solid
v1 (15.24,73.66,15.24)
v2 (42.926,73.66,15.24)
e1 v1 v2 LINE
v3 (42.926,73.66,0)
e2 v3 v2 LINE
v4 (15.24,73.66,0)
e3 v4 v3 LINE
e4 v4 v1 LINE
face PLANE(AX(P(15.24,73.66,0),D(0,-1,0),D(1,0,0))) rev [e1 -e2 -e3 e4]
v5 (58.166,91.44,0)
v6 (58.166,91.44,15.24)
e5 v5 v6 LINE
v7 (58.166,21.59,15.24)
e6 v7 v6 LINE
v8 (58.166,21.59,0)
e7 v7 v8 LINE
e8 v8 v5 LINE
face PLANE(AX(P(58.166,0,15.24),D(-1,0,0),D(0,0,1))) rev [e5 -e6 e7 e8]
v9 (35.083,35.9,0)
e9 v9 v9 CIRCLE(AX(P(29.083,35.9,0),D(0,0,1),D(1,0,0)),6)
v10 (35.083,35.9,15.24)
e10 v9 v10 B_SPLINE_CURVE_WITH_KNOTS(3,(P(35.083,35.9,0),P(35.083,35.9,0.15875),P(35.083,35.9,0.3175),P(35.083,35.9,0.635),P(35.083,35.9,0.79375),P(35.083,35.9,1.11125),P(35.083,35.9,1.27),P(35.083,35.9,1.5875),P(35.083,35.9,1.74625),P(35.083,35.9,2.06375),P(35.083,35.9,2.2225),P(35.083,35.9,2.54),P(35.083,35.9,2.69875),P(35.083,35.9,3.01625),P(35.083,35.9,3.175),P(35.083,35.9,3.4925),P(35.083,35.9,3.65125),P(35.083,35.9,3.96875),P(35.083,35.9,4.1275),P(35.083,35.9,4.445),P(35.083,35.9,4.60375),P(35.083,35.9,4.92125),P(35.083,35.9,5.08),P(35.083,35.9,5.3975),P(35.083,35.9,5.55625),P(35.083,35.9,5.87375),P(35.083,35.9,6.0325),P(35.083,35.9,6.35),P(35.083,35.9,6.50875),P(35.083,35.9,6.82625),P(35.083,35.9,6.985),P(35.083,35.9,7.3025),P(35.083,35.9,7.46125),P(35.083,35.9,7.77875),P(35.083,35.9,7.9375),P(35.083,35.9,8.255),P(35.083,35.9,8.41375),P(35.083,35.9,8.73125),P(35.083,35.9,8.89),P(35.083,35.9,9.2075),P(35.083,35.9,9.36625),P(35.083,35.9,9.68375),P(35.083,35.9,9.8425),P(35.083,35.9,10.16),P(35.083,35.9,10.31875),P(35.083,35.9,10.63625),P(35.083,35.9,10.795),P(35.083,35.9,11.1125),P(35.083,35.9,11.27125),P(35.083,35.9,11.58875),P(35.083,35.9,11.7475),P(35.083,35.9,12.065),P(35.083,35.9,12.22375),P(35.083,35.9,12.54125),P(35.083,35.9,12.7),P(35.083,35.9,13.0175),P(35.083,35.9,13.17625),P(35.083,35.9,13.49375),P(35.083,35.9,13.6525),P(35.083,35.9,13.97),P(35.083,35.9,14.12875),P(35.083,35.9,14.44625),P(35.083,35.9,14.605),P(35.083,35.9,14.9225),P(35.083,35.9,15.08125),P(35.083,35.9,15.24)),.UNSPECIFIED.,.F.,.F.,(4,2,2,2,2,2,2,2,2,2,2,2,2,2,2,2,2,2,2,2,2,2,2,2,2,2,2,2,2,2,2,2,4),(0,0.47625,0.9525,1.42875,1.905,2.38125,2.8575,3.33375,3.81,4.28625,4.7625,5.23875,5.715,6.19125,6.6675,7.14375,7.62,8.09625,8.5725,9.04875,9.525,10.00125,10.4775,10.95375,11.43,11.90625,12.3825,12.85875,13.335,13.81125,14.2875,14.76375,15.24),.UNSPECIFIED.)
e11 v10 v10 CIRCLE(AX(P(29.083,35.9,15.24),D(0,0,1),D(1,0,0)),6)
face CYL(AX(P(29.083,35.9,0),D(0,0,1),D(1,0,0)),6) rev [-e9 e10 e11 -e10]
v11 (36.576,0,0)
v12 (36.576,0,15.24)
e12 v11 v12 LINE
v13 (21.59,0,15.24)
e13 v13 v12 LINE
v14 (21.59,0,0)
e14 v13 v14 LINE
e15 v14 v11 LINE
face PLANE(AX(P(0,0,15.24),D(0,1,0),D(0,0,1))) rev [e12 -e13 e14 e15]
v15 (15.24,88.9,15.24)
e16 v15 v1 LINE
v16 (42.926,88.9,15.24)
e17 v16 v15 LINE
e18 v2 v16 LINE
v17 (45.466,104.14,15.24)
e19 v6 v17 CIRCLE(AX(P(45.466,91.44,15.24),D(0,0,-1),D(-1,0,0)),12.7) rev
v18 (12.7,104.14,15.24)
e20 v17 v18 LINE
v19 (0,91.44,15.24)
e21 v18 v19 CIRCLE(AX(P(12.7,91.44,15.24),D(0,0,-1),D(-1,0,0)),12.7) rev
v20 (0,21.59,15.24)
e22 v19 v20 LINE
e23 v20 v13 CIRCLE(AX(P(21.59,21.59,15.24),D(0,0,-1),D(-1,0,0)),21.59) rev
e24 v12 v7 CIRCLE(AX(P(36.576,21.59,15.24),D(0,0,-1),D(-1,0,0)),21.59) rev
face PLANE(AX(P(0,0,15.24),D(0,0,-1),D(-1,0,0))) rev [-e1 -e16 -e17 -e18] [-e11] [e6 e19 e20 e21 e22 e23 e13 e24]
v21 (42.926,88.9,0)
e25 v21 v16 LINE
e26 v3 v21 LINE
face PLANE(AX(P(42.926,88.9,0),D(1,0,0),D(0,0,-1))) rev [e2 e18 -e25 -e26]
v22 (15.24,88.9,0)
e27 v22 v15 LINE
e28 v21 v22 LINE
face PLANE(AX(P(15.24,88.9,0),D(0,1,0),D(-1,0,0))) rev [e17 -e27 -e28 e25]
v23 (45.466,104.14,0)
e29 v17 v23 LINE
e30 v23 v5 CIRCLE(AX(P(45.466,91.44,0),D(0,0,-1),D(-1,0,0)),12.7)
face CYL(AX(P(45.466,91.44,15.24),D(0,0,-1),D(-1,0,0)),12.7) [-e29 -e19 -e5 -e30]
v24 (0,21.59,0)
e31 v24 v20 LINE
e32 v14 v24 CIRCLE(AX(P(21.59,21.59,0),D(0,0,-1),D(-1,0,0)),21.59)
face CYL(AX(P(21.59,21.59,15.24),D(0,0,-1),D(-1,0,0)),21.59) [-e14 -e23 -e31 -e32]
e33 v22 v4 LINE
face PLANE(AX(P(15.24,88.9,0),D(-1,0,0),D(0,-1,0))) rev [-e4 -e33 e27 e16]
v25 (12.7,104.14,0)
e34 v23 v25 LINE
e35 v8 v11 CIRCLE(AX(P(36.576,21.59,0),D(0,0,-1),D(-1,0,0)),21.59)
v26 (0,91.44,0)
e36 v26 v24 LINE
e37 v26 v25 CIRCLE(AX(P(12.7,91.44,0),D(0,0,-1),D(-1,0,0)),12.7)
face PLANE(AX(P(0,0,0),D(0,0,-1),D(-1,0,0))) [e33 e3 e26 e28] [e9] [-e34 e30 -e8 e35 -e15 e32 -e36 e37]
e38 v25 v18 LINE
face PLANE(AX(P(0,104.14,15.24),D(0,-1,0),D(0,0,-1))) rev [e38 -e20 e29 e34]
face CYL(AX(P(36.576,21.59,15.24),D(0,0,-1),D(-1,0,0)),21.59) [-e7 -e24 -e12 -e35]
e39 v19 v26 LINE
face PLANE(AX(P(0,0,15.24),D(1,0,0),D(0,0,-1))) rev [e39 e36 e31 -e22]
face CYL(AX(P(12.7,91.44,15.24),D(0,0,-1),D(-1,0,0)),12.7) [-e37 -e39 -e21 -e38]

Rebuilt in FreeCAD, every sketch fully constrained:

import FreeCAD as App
import Part
import Sketcher
Q = App.Units.Quantity


def edges_at(feature, points):
    """Names of the edges that pass closest to the given points."""
    edges = feature.Shape.Edges
    near = lambda p: min(range(len(edges)), key=lambda i: edges[i].distToShape(Part.Vertex(*p))[0])
    return sorted({f"Edge{near(p) + 1}" for p in points})

doc = App.newDocument("Part")
body = doc.addObject("PartDesign::Body", "Body")

# Sketch on XY plane
sketch1 = body.newObject("Sketcher::SketchObject", "Sketch")
sketch1.AttachmentSupport = (doc.getObject("XY_Plane"), [""])
sketch1.MapMode = "FlatFace"
sketch1.addGeometry([
    Part.LineSegment(App.Vector(0, 104, 0), App.Vector(0, 0, 0)),
    Part.LineSegment(App.Vector(0, 0, 0), App.Vector(58, 0, 0)),
    Part.LineSegment(App.Vector(58, 0, 0), App.Vector(58, 104, 0)),
    Part.LineSegment(App.Vector(58, 104, 0), App.Vector(0, 104, 0)),
], False)
sketch1.addConstraint([
    Sketcher.Constraint("Coincident", 0, 2, 1, 1),
    Sketcher.Constraint("Coincident", 1, 2, 2, 1),
    Sketcher.Constraint("Coincident", 2, 2, 3, 1),
    Sketcher.Constraint("Coincident", 3, 2, 0, 1),
    Sketcher.Constraint("Vertical", 0),
    Sketcher.Constraint("Horizontal", 1),
    Sketcher.Constraint("Vertical", 2),
    Sketcher.Constraint("Horizontal", 3),
    Sketcher.Constraint("Coincident", 0, 2, -1, 1),
    Sketcher.Constraint("DistanceY", 0, 2, 0, 1, Q("4.1 in")),
    Sketcher.Constraint("DistanceX", 1, 1, 1, 2, Q("2.29 in")),
])
pad1 = body.newObject("PartDesign::Pad", "Pad")
pad1.Profile = sketch1
pad1.Length = Q("0.6 in")

# Sketch on XY plane
sketch2 = body.newObject("Sketcher::SketchObject", "Sketch001")
sketch2.AttachmentSupport = (doc.getObject("XY_Plane"), [""])
sketch2.MapMode = "FlatFace"
sketch2.AttachmentOffset = App.Placement(App.Vector(0, 0, 0.6 * 25.4), App.Rotation())
sketch2.addGeometry([
    Part.LineSegment(App.Vector(15, 89, 0), App.Vector(15, 74, 0)),
    Part.LineSegment(App.Vector(15, 74, 0), App.Vector(43, 74, 0)),
    Part.LineSegment(App.Vector(43, 74, 0), App.Vector(43, 89, 0)),
    Part.LineSegment(App.Vector(43, 89, 0), App.Vector(15, 89, 0)),
], False)
sketch2.addConstraint([
    Sketcher.Constraint("Coincident", 0, 2, 1, 1),
    Sketcher.Constraint("Coincident", 1, 2, 2, 1),
    Sketcher.Constraint("Coincident", 2, 2, 3, 1),
    Sketcher.Constraint("Coincident", 3, 2, 0, 1),
    Sketcher.Constraint("Vertical", 0),
    Sketcher.Constraint("Horizontal", 1),
    Sketcher.Constraint("Vertical", 2),
    Sketcher.Constraint("Horizontal", 3),
    Sketcher.Constraint("DistanceY", 0, 2, 0, 1, Q("0.6 in")),
    Sketcher.Constraint("DistanceX", 1, 1, 1, 2, Q("1.09 in")),
    Sketcher.Constraint("DistanceX", -1, 1, 0, 2, Q("0.6 in")),
    Sketcher.Constraint("DistanceY", -1, 1, 0, 2, Q("2.9 in")),
])
pocket1 = body.newObject("PartDesign::Pocket", "Pocket")
pocket1.Profile = sketch2
pocket1.Type = "ThroughAll"

# Sketch on XY plane
sketch3 = body.newObject("Sketcher::SketchObject", "Sketch002")
sketch3.AttachmentSupport = (doc.getObject("XY_Plane"), [""])
sketch3.MapMode = "FlatFace"
sketch3.AttachmentOffset = App.Placement(App.Vector(0, 0, 0.6 * 25.4), App.Rotation())
sketch3.addGeometry(Part.Circle(App.Vector(29, 36, 0), App.Vector(0, 0, 1), 6), False)
sketch3.addConstraint([
    Sketcher.Constraint("Diameter", 0, Q("12 mm")),
    Sketcher.Constraint("DistanceX", -1, 1, 0, 3, Q("1.145 in")),
    Sketcher.Constraint("DistanceY", -1, 1, 0, 3, Q("35.9 mm")),
])
pocket2 = body.newObject("PartDesign::Pocket", "Pocket001")
pocket2.Profile = sketch3
pocket2.Type = "ThroughAll"
doc.recompute()

fillet = body.newObject("PartDesign::Fillet", "Fillet")
fillet.Base = (pocket2, edges_at(pocket2, [(58.166, 0, 7.62), (0, 0, 7.62)]))
fillet.Radius = Q("0.85 in")
doc.recompute()

fillet2 = body.newObject("PartDesign::Fillet", "Fillet001")
fillet2.Base = (fillet, edges_at(fillet, [(0, 104.14, 7.62), (58.166, 104.14, 7.62)]))
fillet2.Radius = Q("0.5 in")

doc.recompute()
